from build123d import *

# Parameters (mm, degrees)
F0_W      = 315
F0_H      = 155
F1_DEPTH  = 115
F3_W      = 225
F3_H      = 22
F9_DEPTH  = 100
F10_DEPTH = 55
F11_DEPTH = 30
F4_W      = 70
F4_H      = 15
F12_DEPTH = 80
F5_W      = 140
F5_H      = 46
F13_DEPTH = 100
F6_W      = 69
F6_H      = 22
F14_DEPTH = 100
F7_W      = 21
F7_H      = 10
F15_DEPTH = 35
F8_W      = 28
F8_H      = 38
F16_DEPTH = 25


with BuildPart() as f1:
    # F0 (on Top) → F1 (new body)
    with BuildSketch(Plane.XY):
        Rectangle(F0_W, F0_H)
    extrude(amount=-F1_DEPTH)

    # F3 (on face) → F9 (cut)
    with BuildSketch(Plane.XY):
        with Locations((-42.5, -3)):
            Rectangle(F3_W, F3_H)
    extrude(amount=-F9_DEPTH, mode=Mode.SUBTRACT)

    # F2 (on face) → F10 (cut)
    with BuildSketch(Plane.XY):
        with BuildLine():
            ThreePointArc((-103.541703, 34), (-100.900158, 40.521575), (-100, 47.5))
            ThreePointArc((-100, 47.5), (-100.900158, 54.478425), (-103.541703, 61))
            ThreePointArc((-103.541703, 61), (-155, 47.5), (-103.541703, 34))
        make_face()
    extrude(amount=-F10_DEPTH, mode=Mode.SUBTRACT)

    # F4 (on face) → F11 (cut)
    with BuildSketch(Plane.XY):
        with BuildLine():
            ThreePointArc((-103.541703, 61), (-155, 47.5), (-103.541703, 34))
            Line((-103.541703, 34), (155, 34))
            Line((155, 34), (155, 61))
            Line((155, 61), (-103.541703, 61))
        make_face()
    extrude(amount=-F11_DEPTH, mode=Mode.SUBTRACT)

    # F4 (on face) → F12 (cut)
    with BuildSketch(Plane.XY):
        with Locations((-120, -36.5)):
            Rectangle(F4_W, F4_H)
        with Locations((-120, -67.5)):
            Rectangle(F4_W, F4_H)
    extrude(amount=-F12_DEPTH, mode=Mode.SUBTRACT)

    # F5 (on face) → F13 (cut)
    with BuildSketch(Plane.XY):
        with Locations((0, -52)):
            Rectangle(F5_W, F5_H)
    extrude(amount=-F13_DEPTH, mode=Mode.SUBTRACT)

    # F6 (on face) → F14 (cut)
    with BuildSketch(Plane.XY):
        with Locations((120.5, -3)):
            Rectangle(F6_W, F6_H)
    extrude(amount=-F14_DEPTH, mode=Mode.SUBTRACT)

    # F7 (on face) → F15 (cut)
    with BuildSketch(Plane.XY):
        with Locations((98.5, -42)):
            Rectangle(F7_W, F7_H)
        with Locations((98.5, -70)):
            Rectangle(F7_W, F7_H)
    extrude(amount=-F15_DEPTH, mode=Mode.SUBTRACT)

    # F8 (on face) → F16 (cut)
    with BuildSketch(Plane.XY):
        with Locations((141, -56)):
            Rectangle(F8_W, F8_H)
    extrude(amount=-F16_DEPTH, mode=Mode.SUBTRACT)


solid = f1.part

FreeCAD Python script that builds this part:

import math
import FreeCAD as App
import Part
import Sketcher

doc = App.newDocument("Part")
body = doc.addObject("PartDesign::Body", "Body")

sketch1 = doc.addObject("Sketcher::SketchObject", "Sketch")
body.addObject(sketch1)
sketch1.AttachmentSupport = (doc.XY_Plane, [""])
sketch1.MapMode = "FlatFace"
sketch1.addGeometry(Part.LineSegment(App.Vector(-157.5, 77.5, 0), App.Vector(-157.5, -77.5, 0)), False)
sketch1.addGeometry(Part.LineSegment(App.Vector(-157.5, -77.5, 0), App.Vector(157.5, -77.5, 0)), False)
sketch1.addGeometry(Part.LineSegment(App.Vector(157.5, -77.5, 0), App.Vector(157.5, 77.5, 0)), False)
sketch1.addGeometry(Part.LineSegment(App.Vector(157.5, 77.5, 0), App.Vector(-157.5, 77.5, 0)), False)
sketch1.addConstraint(Sketcher.Constraint("Coincident", 0, 2, 1, 1))
sketch1.addConstraint(Sketcher.Constraint("Coincident", 1, 2, 2, 1))
sketch1.addConstraint(Sketcher.Constraint("Coincident", 2, 2, 3, 1))
sketch1.addConstraint(Sketcher.Constraint("Coincident", 3, 2, 0, 1))
sketch1.addConstraint(Sketcher.Constraint("Vertical", 0))
sketch1.addConstraint(Sketcher.Constraint("Horizontal", 1))
sketch1.addConstraint(Sketcher.Constraint("Vertical", 2))
sketch1.addConstraint(Sketcher.Constraint("Horizontal", 3))
sketch1.addConstraint(Sketcher.Constraint("Symmetric", 0, 2, 2, 2, -1, 1))
sketch1.addConstraint(Sketcher.Constraint("DistanceX", 1, 1, 1, 2, 315.0))
sketch1.addConstraint(Sketcher.Constraint("DistanceY", 0, 2, 0, 1, 155.0))
pad1 = doc.addObject("PartDesign::Pad", "Pad")
body.addObject(pad1)
pad1.Profile = sketch1
pad1.Length = 115
pad1.Reversed = True

sketch2 = doc.addObject("Sketcher::SketchObject", "Sketch001")
body.addObject(sketch2)
sketch2.AttachmentSupport = (doc.XY_Plane, [""])
sketch2.MapMode = "FlatFace"
sketch2.addGeometry(Part.LineSegment(App.Vector(-155, 8, 0), App.Vector(-155, -14, 0)), False)
sketch2.addGeometry(Part.LineSegment(App.Vector(-155, -14, 0), App.Vector(70, -14, 0)), False)
sketch2.addGeometry(Part.LineSegment(App.Vector(70, -14, 0), App.Vector(70, 8, 0)), False)
sketch2.addGeometry(Part.LineSegment(App.Vector(70, 8, 0), App.Vector(-155, 8, 0)), False)
sketch2.addConstraint(Sketcher.Constraint("Coincident", 0, 2, 1, 1))
sketch2.addConstraint(Sketcher.Constraint("Coincident", 1, 2, 2, 1))
sketch2.addConstraint(Sketcher.Constraint("Coincident", 2, 2, 3, 1))
sketch2.addConstraint(Sketcher.Constraint("Coincident", 3, 2, 0, 1))
sketch2.addConstraint(Sketcher.Constraint("Vertical", 0))
sketch2.addConstraint(Sketcher.Constraint("Horizontal", 1))
sketch2.addConstraint(Sketcher.Constraint("Vertical", 2))
sketch2.addConstraint(Sketcher.Constraint("Horizontal", 3))
sketch2.addConstraint(Sketcher.Constraint("DistanceX", 1, 1, 1, 2, 225.0))
sketch2.addConstraint(Sketcher.Constraint("DistanceY", 0, 2, 0, 1, 22.0))
sketch2.addConstraint(Sketcher.Constraint("DistanceX", 0, 2, -1, 1, 155.0))
sketch2.addConstraint(Sketcher.Constraint("DistanceY", 0, 2, -1, 1, 14.0))
pocket1 = doc.addObject("PartDesign::Pocket", "Pocket")
body.addObject(pocket1)
pocket1.Profile = sketch2
pocket1.Length = 100

sketch3 = doc.addObject("Sketcher::SketchObject", "Sketch002")
body.addObject(sketch3)
sketch3.AttachmentSupport = (doc.XY_Plane, [""])
sketch3.MapMode = "FlatFace"
sketch3.addGeometry(Part.ArcOfCircle(Part.Circle(App.Vector(-127.499993, 47.499998, 0), App.Vector(0, 0, 1), 27.499993), math.radians(-29.400355), math.radians(0.000003)), False)
sketch3.addGeometry(Part.ArcOfCircle(Part.Circle(App.Vector(-127.499993, 47.500002, 0), App.Vector(0, 0, 1), 27.499993), math.radians(-0.000003), math.radians(29.400355)), False)
sketch3.addGeometry(Part.ArcOfCircle(Part.Circle(App.Vector(-127.5, 47.5, 0), App.Vector(0, 0, 1), 27.5), math.radians(29.400351), math.radians(330.599649)), False)
sketch3.addConstraint(Sketcher.Constraint("Tangent", 0, 2, 1, 1))
sketch3.addConstraint(Sketcher.Constraint("Tangent", 1, 2, 2, 1))
sketch3.addConstraint(Sketcher.Constraint("Tangent", 2, 2, 0, 1))
sketch3.addConstraint(Sketcher.Constraint("Horizontal", 2, 3, 0, 2))
sketch3.addConstraint(Sketcher.Constraint("Vertical", 1, 2, 2, 2))
sketch3.addConstraint(Sketcher.Constraint("Radius", 2, 27.5))
sketch3.addConstraint(Sketcher.Constraint("DistanceX", 0, 2, -1, 1, 100.0))
sketch3.addConstraint(Sketcher.Constraint("DistanceY", -1, 1, 1, 2, 61.0))
sketch3.addConstraint(Sketcher.Constraint("DistanceY", -1, 1, 2, 2, 34.0))
pocket2 = doc.addObject("PartDesign::Pocket", "Pocket001")
body.addObject(pocket2)
pocket2.Profile = sketch3
pocket2.Length = 55

sketch4 = doc.addObject("Sketcher::SketchObject", "Sketch003")
body.addObject(sketch4)
sketch4.AttachmentSupport = (doc.XY_Plane, [""])
sketch4.MapMode = "FlatFace"
sketch4.addGeometry(Part.ArcOfCircle(Part.Circle(App.Vector(-127.5, 47.5, 0), App.Vector(0, 0, 1), 27.5), math.radians(29.400351), math.radians(330.599649)), False)
sketch4.addGeometry(Part.LineSegment(App.Vector(-103.541703, 34, 0), App.Vector(155, 34, 0)), False)
sketch4.addGeometry(Part.LineSegment(App.Vector(155, 34, 0), App.Vector(155, 61, 0)), False)
sketch4.addGeometry(Part.LineSegment(App.Vector(155, 61, 0), App.Vector(-103.541703, 61, 0)), False)
sketch4.addConstraint(Sketcher.Constraint("Coincident", 0, 2, 1, 1))
sketch4.addConstraint(Sketcher.Constraint("Coincident", 1, 2, 2, 1))
sketch4.addConstraint(Sketcher.Constraint("Coincident", 2, 2, 3, 1))
sketch4.addConstraint(Sketcher.Constraint("Coincident", 3, 2, 0, 1))
sketch4.addConstraint(Sketcher.Constraint("Horizontal", 1))
sketch4.addConstraint(Sketcher.Constraint("Vertical", 2))
sketch4.addConstraint(Sketcher.Constraint("Horizontal", 3))
sketch4.addConstraint(Sketcher.Constraint("Vertical", 0, 2, 3, 2))
sketch4.addConstraint(Sketcher.Constraint("Radius", 0, 27.5))
sketch4.addConstraint(Sketcher.Constraint("DistanceY", 2, 1, 2, 2, 27.0))
sketch4.addConstraint(Sketcher.Constraint("DistanceY", -1, 1, 0, 2, 34.0))
sketch4.addConstraint(Sketcher.Constraint("DistanceX", -1, 1, 1, 2, 155.0))
sketch4.addConstraint(Sketcher.Constraint("DistanceX", 0, 3, -1, 1, 127.5))
pocket3 = doc.addObject("PartDesign::Pocket", "Pocket002")
body.addObject(pocket3)
pocket3.Profile = sketch4
pocket3.Length = 30

sketch5 = doc.addObject("Sketcher::SketchObject", "Sketch004")
body.addObject(sketch5)
sketch5.AttachmentSupport = (doc.XY_Plane, [""])
sketch5.MapMode = "FlatFace"
sketch5.addGeometry(Part.LineSegment(App.Vector(-155, -29, 0), App.Vector(-155, -44, 0)), False)
sketch5.addGeometry(Part.LineSegment(App.Vector(-155, -44, 0), App.Vector(-85, -44, 0)), False)
sketch5.addGeometry(Part.LineSegment(App.Vector(-85, -44, 0), App.Vector(-85, -29, 0)), False)
sketch5.addGeometry(Part.LineSegment(App.Vector(-85, -29, 0), App.Vector(-155, -29, 0)), False)
sketch5.addGeometry(Part.LineSegment(App.Vector(-155, -60, 0), App.Vector(-155, -75, 0)), False)
sketch5.addGeometry(Part.LineSegment(App.Vector(-155, -75, 0), App.Vector(-85, -75, 0)), False)
sketch5.addGeometry(Part.LineSegment(App.Vector(-85, -75, 0), App.Vector(-85, -60, 0)), False)
sketch5.addGeometry(Part.LineSegment(App.Vector(-85, -60, 0), App.Vector(-155, -60, 0)), False)
sketch5.addConstraint(Sketcher.Constraint("Coincident", 0, 2, 1, 1))
sketch5.addConstraint(Sketcher.Constraint("Coincident", 1, 2, 2, 1))
sketch5.addConstraint(Sketcher.Constraint("Coincident", 2, 2, 3, 1))
sketch5.addConstraint(Sketcher.Constraint("Coincident", 3, 2, 0, 1))
sketch5.addConstraint(Sketcher.Constraint("Coincident", 4, 2, 5, 1))
sketch5.addConstraint(Sketcher.Constraint("Coincident", 5, 2, 6, 1))
sketch5.addConstraint(Sketcher.Constraint("Coincident", 6, 2, 7, 1))
sketch5.addConstraint(Sketcher.Constraint("Coincident", 7, 2, 4, 1))
sketch5.addConstraint(Sketcher.Constraint("Vertical", 0))
sketch5.addConstraint(Sketcher.Constraint("Horizontal", 1))
sketch5.addConstraint(Sketcher.Constraint("Vertical", 2))
sketch5.addConstraint(Sketcher.Constraint("Horizontal", 3))
sketch5.addConstraint(Sketcher.Constraint("Vertical", 4))
sketch5.addConstraint(Sketcher.Constraint("Horizontal", 5))
sketch5.addConstraint(Sketcher.Constraint("Vertical", 6))
sketch5.addConstraint(Sketcher.Constraint("Horizontal", 7))
sketch5.addConstraint(Sketcher.Constraint("Vertical", 3, 2, 4, 2))
sketch5.addConstraint(Sketcher.Constraint("Vertical", 2, 2, 5, 2))
sketch5.addConstraint(Sketcher.Constraint("Equal", 2, 4))
sketch5.addConstraint(Sketcher.Constraint("DistanceX", 1, 1, 1, 2, 70.0))
sketch5.addConstraint(Sketcher.Constraint("DistanceY", 0, 2, 0, 1, 15.0))
sketch5.addConstraint(Sketcher.Constraint("DistanceX", 0, 2, -1, 1, 155.0))
sketch5.addConstraint(Sketcher.Constraint("DistanceY", 0, 2, -1, 1, 44.0))
sketch5.addConstraint(Sketcher.Constraint("DistanceY", 4, 2, -1, 1, 75.0))
pocket4 = doc.addObject("PartDesign::Pocket", "Pocket003")
body.addObject(pocket4)
pocket4.Profile = sketch5
pocket4.Length = 80

sketch6 = doc.addObject("Sketcher::SketchObject", "Sketch005")
body.addObject(sketch6)
sketch6.AttachmentSupport = (doc.XY_Plane, [""])
sketch6.MapMode = "FlatFace"
sketch6.addGeometry(Part.LineSegment(App.Vector(-70, -29, 0), App.Vector(-70, -75, 0)), False)
sketch6.addGeometry(Part.LineSegment(App.Vector(-70, -75, 0), App.Vector(70, -75, 0)), False)
sketch6.addGeometry(Part.LineSegment(App.Vector(70, -75, 0), App.Vector(70, -29, 0)), False)
sketch6.addGeometry(Part.LineSegment(App.Vector(70, -29, 0), App.Vector(-70, -29, 0)), False)
sketch6.addConstraint(Sketcher.Constraint("Coincident", 0, 2, 1, 1))
sketch6.addConstraint(Sketcher.Constraint("Coincident", 1, 2, 2, 1))
sketch6.addConstraint(Sketcher.Constraint("Coincident", 2, 2, 3, 1))
sketch6.addConstraint(Sketcher.Constraint("Coincident", 3, 2, 0, 1))
sketch6.addConstraint(Sketcher.Constraint("Vertical", 0))
sketch6.addConstraint(Sketcher.Constraint("Horizontal", 1))
sketch6.addConstraint(Sketcher.Constraint("Vertical", 2))
sketch6.addConstraint(Sketcher.Constraint("Horizontal", 3))
sketch6.addConstraint(Sketcher.Constraint("DistanceX", 1, 1, 1, 2, 140.0))
sketch6.addConstraint(Sketcher.Constraint("DistanceY", 0, 2, 0, 1, 46.0))
sketch6.addConstraint(Sketcher.Constraint("DistanceX", 0, 2, -1, 1, 70.0))
sketch6.addConstraint(Sketcher.Constraint("DistanceY", 0, 2, -1, 1, 75.0))
pocket5 = doc.addObject("PartDesign::Pocket", "Pocket004")
body.addObject(pocket5)
pocket5.Profile = sketch6
pocket5.Length = 100

sketch7 = doc.addObject("Sketcher::SketchObject", "Sketch006")
body.addObject(sketch7)
sketch7.AttachmentSupport = (doc.XY_Plane, [""])
sketch7.MapMode = "FlatFace"
sketch7.addGeometry(Part.LineSegment(App.Vector(86, 8, 0), App.Vector(86, -14, 0)), False)
sketch7.addGeometry(Part.LineSegment(App.Vector(86, -14, 0), App.Vector(155, -14, 0)), False)
sketch7.addGeometry(Part.LineSegment(App.Vector(155, -14, 0), App.Vector(155, 8, 0)), False)
sketch7.addGeometry(Part.LineSegment(App.Vector(155, 8, 0), App.Vector(86, 8, 0)), False)
sketch7.addConstraint(Sketcher.Constraint("Coincident", 0, 2, 1, 1))
sketch7.addConstraint(Sketcher.Constraint("Coincident", 1, 2, 2, 1))
sketch7.addConstraint(Sketcher.Constraint("Coincident", 2, 2, 3, 1))
sketch7.addConstraint(Sketcher.Constraint("Coincident", 3, 2, 0, 1))
sketch7.addConstraint(Sketcher.Constraint("Vertical", 0))
sketch7.addConstraint(Sketcher.Constraint("Horizontal", 1))
sketch7.addConstraint(Sketcher.Constraint("Vertical", 2))
sketch7.addConstraint(Sketcher.Constraint("Horizontal", 3))
sketch7.addConstraint(Sketcher.Constraint("DistanceX", 1, 1, 1, 2, 69.0))
sketch7.addConstraint(Sketcher.Constraint("DistanceY", 0, 2, 0, 1, 22.0))
sketch7.addConstraint(Sketcher.Constraint("DistanceX", -1, 1, 0, 2, 86.0))
sketch7.addConstraint(Sketcher.Constraint("DistanceY", 0, 2, -1, 1, 14.0))
pocket6 = doc.addObject("PartDesign::Pocket", "Pocket005")
body.addObject(pocket6)
pocket6.Profile = sketch7
pocket6.Length = 100

sketch8 = doc.addObject("Sketcher::SketchObject", "Sketch007")
body.addObject(sketch8)
sketch8.AttachmentSupport = (doc.XY_Plane, [""])
sketch8.MapMode = "FlatFace"
sketch8.addGeometry(Part.LineSegment(App.Vector(88, -37, 0), App.Vector(88, -47, 0)), False)
sketch8.addGeometry(Part.LineSegment(App.Vector(88, -47, 0), App.Vector(109, -47, 0)), False)
sketch8.addGeometry(Part.LineSegment(App.Vector(109, -47, 0), App.Vector(109, -37, 0)), False)
sketch8.addGeometry(Part.LineSegment(App.Vector(109, -37, 0), App.Vector(88, -37, 0)), False)
sketch8.addGeometry(Part.LineSegment(App.Vector(88, -65, 0), App.Vector(88, -75, 0)), False)
sketch8.addGeometry(Part.LineSegment(App.Vector(88, -75, 0), App.Vector(109, -75, 0)), False)
sketch8.addGeometry(Part.LineSegment(App.Vector(109, -75, 0), App.Vector(109, -65, 0)), False)
sketch8.addGeometry(Part.LineSegment(App.Vector(109, -65, 0), App.Vector(88, -65, 0)), False)
sketch8.addConstraint(Sketcher.Constraint("Coincident", 0, 2, 1, 1))
sketch8.addConstraint(Sketcher.Constraint("Coincident", 1, 2, 2, 1))
sketch8.addConstraint(Sketcher.Constraint("Coincident", 2, 2, 3, 1))
sketch8.addConstraint(Sketcher.Constraint("Coincident", 3, 2, 0, 1))
sketch8.addConstraint(Sketcher.Constraint("Coincident", 4, 2, 5, 1))
sketch8.addConstraint(Sketcher.Constraint("Coincident", 5, 2, 6, 1))
sketch8.addConstraint(Sketcher.Constraint("Coincident", 6, 2, 7, 1))
sketch8.addConstraint(Sketcher.Constraint("Coincident", 7, 2, 4, 1))
sketch8.addConstraint(Sketcher.Constraint("Vertical", 0))
sketch8.addConstraint(Sketcher.Constraint("Horizontal", 1))
sketch8.addConstraint(Sketcher.Constraint("Vertical", 2))
sketch8.addConstraint(Sketcher.Constraint("Horizontal", 3))
sketch8.addConstraint(Sketcher.Constraint("Vertical", 4))
sketch8.addConstraint(Sketcher.Constraint("Horizontal", 5))
sketch8.addConstraint(Sketcher.Constraint("Vertical", 6))
sketch8.addConstraint(Sketcher.Constraint("Horizontal", 7))
sketch8.addConstraint(Sketcher.Constraint("Vertical", 3, 2, 4, 2))
sketch8.addConstraint(Sketcher.Constraint("Vertical", 2, 2, 5, 2))
sketch8.addConstraint(Sketcher.Constraint("Equal", 2, 4))
sketch8.addConstraint(Sketcher.Constraint("DistanceX", 1, 1, 1, 2, 21.0))
sketch8.addConstraint(Sketcher.Constraint("DistanceY", 0, 2, 0, 1, 10.0))
sketch8.addConstraint(Sketcher.Constraint("DistanceX", -1, 1, 0, 2, 88.0))
sketch8.addConstraint(Sketcher.Constraint("DistanceY", 0, 2, -1, 1, 47.0))
sketch8.addConstraint(Sketcher.Constraint("DistanceY", 4, 2, -1, 1, 75.0))
pocket7 = doc.addObject("PartDesign::Pocket", "Pocket006")
body.addObject(pocket7)
pocket7.Profile = sketch8
pocket7.Length = 35

sketch9 = doc.addObject("Sketcher::SketchObject", "Sketch008")
body.addObject(sketch9)
sketch9.AttachmentSupport = (doc.XY_Plane, [""])
sketch9.MapMode = "FlatFace"
sketch9.addGeometry(Part.LineSegment(App.Vector(127, -37, 0), App.Vector(127, -75, 0)), False)
sketch9.addGeometry(Part.LineSegment(App.Vector(127, -75, 0), App.Vector(155, -75, 0)), False)
sketch9.addGeometry(Part.LineSegment(App.Vector(155, -75, 0), App.Vector(155, -37, 0)), False)
sketch9.addGeometry(Part.LineSegment(App.Vector(155, -37, 0), App.Vector(127, -37, 0)), False)
sketch9.addConstraint(Sketcher.Constraint("Coincident", 0, 2, 1, 1))
sketch9.addConstraint(Sketcher.Constraint("Coincident", 1, 2, 2, 1))
sketch9.addConstraint(Sketcher.Constraint("Coincident", 2, 2, 3, 1))
sketch9.addConstraint(Sketcher.Constraint("Coincident", 3, 2, 0, 1))
sketch9.addConstraint(Sketcher.Constraint("Vertical", 0))
sketch9.addConstraint(Sketcher.Constraint("Horizontal", 1))
sketch9.addConstraint(Sketcher.Constraint("Vertical", 2))
sketch9.addConstraint(Sketcher.Constraint("Horizontal", 3))
sketch9.addConstraint(Sketcher.Constraint("DistanceX", 1, 1, 1, 2, 28.0))
sketch9.addConstraint(Sketcher.Constraint("DistanceY", 0, 2, 0, 1, 38.0))
sketch9.addConstraint(Sketcher.Constraint("DistanceX", -1, 1, 0, 2, 127.0))
sketch9.addConstraint(Sketcher.Constraint("DistanceY", 0, 2, -1, 1, 75.0))
pocket8 = doc.addObject("PartDesign::Pocket", "Pocket007")
body.addObject(pocket8)
pocket8.Profile = sketch9
pocket8.Length = 25

doc.recompute()
